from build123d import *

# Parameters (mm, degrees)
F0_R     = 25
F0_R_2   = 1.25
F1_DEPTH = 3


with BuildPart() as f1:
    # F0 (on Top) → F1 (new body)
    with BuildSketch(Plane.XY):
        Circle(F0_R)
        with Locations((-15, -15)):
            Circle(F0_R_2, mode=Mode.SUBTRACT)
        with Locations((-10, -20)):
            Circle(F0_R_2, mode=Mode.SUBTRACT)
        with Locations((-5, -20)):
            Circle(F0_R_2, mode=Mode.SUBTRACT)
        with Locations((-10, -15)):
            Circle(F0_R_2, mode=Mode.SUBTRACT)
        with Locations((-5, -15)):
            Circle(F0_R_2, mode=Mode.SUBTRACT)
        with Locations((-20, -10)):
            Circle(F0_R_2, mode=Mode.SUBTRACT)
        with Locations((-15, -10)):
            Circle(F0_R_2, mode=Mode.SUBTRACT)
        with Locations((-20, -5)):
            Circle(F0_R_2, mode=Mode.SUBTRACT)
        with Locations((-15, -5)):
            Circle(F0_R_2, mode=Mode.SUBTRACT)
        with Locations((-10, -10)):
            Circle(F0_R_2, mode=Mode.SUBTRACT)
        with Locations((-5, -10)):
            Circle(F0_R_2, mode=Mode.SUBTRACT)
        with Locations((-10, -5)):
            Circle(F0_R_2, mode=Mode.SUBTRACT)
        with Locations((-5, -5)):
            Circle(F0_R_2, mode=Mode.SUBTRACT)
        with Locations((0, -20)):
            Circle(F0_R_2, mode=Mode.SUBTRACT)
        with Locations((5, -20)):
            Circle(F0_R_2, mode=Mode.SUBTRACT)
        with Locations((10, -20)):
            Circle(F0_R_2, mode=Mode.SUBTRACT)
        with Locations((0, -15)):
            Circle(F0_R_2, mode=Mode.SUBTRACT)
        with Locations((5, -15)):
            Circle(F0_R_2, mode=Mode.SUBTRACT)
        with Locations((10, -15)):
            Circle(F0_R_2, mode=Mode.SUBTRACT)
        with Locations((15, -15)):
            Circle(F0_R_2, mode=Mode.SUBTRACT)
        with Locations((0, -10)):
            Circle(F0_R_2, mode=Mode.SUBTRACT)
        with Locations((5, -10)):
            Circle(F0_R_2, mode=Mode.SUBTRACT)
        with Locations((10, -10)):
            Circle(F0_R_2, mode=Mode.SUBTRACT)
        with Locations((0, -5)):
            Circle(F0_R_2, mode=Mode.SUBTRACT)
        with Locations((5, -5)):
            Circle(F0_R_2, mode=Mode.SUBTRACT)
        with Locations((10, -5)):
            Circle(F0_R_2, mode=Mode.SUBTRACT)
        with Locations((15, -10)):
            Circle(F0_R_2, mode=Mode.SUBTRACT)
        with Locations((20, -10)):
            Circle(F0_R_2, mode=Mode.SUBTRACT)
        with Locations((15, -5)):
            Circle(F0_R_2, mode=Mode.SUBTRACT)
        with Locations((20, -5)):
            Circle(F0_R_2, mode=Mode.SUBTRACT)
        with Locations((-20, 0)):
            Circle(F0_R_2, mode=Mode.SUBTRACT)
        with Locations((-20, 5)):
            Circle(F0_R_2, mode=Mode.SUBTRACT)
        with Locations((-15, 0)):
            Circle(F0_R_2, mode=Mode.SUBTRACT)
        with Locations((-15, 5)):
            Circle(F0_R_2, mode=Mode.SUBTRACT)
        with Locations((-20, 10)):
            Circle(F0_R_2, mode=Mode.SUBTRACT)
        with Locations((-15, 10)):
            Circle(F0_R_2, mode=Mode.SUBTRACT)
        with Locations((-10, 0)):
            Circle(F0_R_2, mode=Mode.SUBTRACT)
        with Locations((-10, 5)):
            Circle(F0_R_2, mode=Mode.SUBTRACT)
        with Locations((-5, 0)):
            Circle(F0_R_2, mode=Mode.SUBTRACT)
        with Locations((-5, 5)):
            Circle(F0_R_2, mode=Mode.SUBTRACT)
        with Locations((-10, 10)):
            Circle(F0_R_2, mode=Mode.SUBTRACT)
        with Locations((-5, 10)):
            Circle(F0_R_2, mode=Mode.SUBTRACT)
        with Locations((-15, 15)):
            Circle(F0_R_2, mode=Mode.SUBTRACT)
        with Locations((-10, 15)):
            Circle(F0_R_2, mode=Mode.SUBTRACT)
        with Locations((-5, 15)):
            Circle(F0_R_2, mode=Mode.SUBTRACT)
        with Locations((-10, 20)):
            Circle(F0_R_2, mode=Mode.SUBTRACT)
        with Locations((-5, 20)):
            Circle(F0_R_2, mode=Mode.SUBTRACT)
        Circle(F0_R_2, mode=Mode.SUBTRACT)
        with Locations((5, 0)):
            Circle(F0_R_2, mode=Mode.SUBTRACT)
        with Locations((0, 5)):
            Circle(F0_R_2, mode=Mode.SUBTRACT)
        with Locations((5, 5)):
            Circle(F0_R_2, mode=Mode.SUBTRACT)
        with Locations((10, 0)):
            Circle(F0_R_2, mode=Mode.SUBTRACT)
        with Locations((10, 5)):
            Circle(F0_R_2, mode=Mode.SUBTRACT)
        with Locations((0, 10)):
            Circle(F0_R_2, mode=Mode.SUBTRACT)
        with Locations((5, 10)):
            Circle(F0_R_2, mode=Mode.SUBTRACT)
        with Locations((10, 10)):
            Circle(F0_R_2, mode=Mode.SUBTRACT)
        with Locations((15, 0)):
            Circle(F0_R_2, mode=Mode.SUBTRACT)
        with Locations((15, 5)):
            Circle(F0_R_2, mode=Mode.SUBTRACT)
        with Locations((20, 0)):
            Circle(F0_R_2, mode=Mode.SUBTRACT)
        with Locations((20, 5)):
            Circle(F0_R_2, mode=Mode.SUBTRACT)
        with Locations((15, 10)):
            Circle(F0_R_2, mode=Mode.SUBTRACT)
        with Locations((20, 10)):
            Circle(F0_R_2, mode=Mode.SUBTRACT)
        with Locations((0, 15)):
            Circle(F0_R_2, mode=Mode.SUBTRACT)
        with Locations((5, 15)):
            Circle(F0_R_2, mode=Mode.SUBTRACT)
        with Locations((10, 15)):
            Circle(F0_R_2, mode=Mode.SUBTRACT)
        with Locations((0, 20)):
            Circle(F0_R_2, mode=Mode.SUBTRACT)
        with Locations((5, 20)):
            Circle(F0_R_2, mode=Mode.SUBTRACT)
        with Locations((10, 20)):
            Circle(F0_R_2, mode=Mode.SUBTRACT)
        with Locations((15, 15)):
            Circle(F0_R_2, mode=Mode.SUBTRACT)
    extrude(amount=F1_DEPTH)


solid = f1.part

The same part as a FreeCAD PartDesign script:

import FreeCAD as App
import Part
import Sketcher

V = App.Vector
Q = App.Units.Quantity

doc = App.newDocument("Part")
body = doc.addObject("PartDesign::Body", "Body")

# Sketch on XY plane
sketch1 = body.newObject("Sketcher::SketchObject", "Sketch")
sketch1.AttachmentSupport = (doc.getObject("XY_Plane"), [""])
sketch1.MapMode = "FlatFace"
sketch1.addGeometry([
    Part.Circle(V(0, 0, 0), V(0, 0, 1), 25),  # 0
    Part.Circle(V(-15, -15, 0), V(0, 0, 1), 1.2),  # 1
    Part.Circle(V(-10, -20, 0), V(0, 0, 1), 1.2),  # 2
    Part.Circle(V(-5, -20, 0), V(0, 0, 1), 1.2),  # 3
    Part.Circle(V(-10, -15, 0), V(0, 0, 1), 1.2),  # 4
    Part.Circle(V(-5, -15, 0), V(0, 0, 1), 1.2),  # 5
    Part.Circle(V(-20, -10, 0), V(0, 0, 1), 1.2),  # 6
    Part.Circle(V(-15, -10, 0), V(0, 0, 1), 1.2),  # 7
    Part.Circle(V(-20, -5, 0), V(0, 0, 1), 1.2),  # 8
    Part.Circle(V(-15, -5, 0), V(0, 0, 1), 1.2),  # 9
    Part.Circle(V(-10, -10, 0), V(0, 0, 1), 1.2),  # 10
    Part.Circle(V(-5, -10, 0), V(0, 0, 1), 1.2),  # 11
    Part.Circle(V(-10, -5, 0), V(0, 0, 1), 1.2),  # 12
    Part.Circle(V(-5, -5, 0), V(0, 0, 1), 1.2),  # 13
    Part.Circle(V(0, -20, 0), V(0, 0, 1), 1.2),  # 14
    Part.Circle(V(5, -20, 0), V(0, 0, 1), 1.2),  # 15
    Part.Circle(V(10, -20, 0), V(0, 0, 1), 1.2),  # 16
    Part.Circle(V(0, -15, 0), V(0, 0, 1), 1.2),  # 17
    Part.Circle(V(5, -15, 0), V(0, 0, 1), 1.2),  # 18
    Part.Circle(V(10, -15, 0), V(0, 0, 1), 1.2),  # 19
    Part.Circle(V(15, -15, 0), V(0, 0, 1), 1.2),  # 20
    Part.Circle(V(0, -10, 0), V(0, 0, 1), 1.2),  # 21
    Part.Circle(V(5, -10, 0), V(0, 0, 1), 1.2),  # 22
    Part.Circle(V(10, -10, 0), V(0, 0, 1), 1.2),  # 23
    Part.Circle(V(0, -5, 0), V(0, 0, 1), 1.2),  # 24
    Part.Circle(V(5, -5, 0), V(0, 0, 1), 1.2),  # 25
    Part.Circle(V(10, -5, 0), V(0, 0, 1), 1.2),  # 26
    Part.Circle(V(15, -10, 0), V(0, 0, 1), 1.2),  # 27
    Part.Circle(V(20, -10, 0), V(0, 0, 1), 1.2),  # 28
    Part.Circle(V(15, -5, 0), V(0, 0, 1), 1.2),  # 29
    Part.Circle(V(20, -5, 0), V(0, 0, 1), 1.2),  # 30
    Part.Circle(V(-20, 0, 0), V(0, 0, 1), 1.2),  # 31
    Part.Circle(V(-20, 5, 0), V(0, 0, 1), 1.2),  # 32
    Part.Circle(V(-15, 0, 0), V(0, 0, 1), 1.2),  # 33
    Part.Circle(V(-15, 5, 0), V(0, 0, 1), 1.2),  # 34
    Part.Circle(V(-20, 10, 0), V(0, 0, 1), 1.2),  # 35
    Part.Circle(V(-15, 10, 0), V(0, 0, 1), 1.2),  # 36
    Part.Circle(V(-10, 0, 0), V(0, 0, 1), 1.2),  # 37
    Part.Circle(V(-10, 5, 0), V(0, 0, 1), 1.2),  # 38
    Part.Circle(V(-5, 0, 0), V(0, 0, 1), 1.2),  # 39
    Part.Circle(V(-5, 5, 0), V(0, 0, 1), 1.2),  # 40
    Part.Circle(V(-10, 10, 0), V(0, 0, 1), 1.2),  # 41
    Part.Circle(V(-5, 10, 0), V(0, 0, 1), 1.2),  # 42
    Part.Circle(V(-15, 15, 0), V(0, 0, 1), 1.2),  # 43
    Part.Circle(V(-10, 15, 0), V(0, 0, 1), 1.2),  # 44
    Part.Circle(V(-5, 15, 0), V(0, 0, 1), 1.2),  # 45
    Part.Circle(V(-10, 20, 0), V(0, 0, 1), 1.2),  # 46
    Part.Circle(V(-5, 20, 0), V(0, 0, 1), 1.2),  # 47
    Part.Circle(V(0, 0, 0), V(0, 0, 1), 1.2),  # 48
    Part.Circle(V(5, 0, 0), V(0, 0, 1), 1.2),  # 49
    Part.Circle(V(0, 5, 0), V(0, 0, 1), 1.2),  # 50
    Part.Circle(V(5, 5, 0), V(0, 0, 1), 1.2),  # 51
    Part.Circle(V(10, 0, 0), V(0, 0, 1), 1.2),  # 52
    Part.Circle(V(10, 5, 0), V(0, 0, 1), 1.2),  # 53
    Part.Circle(V(0, 10, 0), V(0, 0, 1), 1.2),  # 54
    Part.Circle(V(5, 10, 0), V(0, 0, 1), 1.2),  # 55
    Part.Circle(V(10, 10, 0), V(0, 0, 1), 1.2),  # 56
    Part.Circle(V(15, 0, 0), V(0, 0, 1), 1.2),  # 57
    Part.Circle(V(15, 5, 0), V(0, 0, 1), 1.2),  # 58
    Part.Circle(V(20, 0, 0), V(0, 0, 1), 1.2),  # 59
    Part.Circle(V(20, 5, 0), V(0, 0, 1), 1.2),  # 60
    Part.Circle(V(15, 10, 0), V(0, 0, 1), 1.2),  # 61
    Part.Circle(V(20, 10, 0), V(0, 0, 1), 1.2),  # 62
    Part.Circle(V(0, 15, 0), V(0, 0, 1), 1.2),  # 63
    Part.Circle(V(5, 15, 0), V(0, 0, 1), 1.2),  # 64
    Part.Circle(V(10, 15, 0), V(0, 0, 1), 1.2),  # 65
    Part.Circle(V(0, 20, 0), V(0, 0, 1), 1.2),  # 66
    Part.Circle(V(5, 20, 0), V(0, 0, 1), 1.2),  # 67
    Part.Circle(V(10, 20, 0), V(0, 0, 1), 1.2),  # 68
    Part.Circle(V(15, 15, 0), V(0, 0, 1), 1.2),  # 69
], False)
sketch1.addConstraint([
    Sketcher.Constraint("Coincident", 0, 3, -1, 1),
    Sketcher.Constraint("Coincident", 48, 3, -1, 1),
    Sketcher.Constraint("Equal", 1, 2),
    Sketcher.Constraint("Equal", 2, 3),
    Sketcher.Constraint("Equal", 3, 4),
    Sketcher.Constraint("Equal", 4, 5),
    Sketcher.Constraint("Equal", 5, 6),
    Sketcher.Constraint("Equal", 6, 7),
    Sketcher.Constraint("Equal", 7, 8),
    Sketcher.Constraint("Equal", 8, 9),
    Sketcher.Constraint("Equal", 9, 10),
    Sketcher.Constraint("Equal", 10, 11),
    Sketcher.Constraint("Equal", 11, 12),
    Sketcher.Constraint("Equal", 12, 13),
    Sketcher.Constraint("Equal", 13, 14),
    Sketcher.Constraint("Equal", 14, 15),
    Sketcher.Constraint("Equal", 15, 16),
    Sketcher.Constraint("Equal", 16, 17),
    Sketcher.Constraint("Equal", 17, 18),
    Sketcher.Constraint("Equal", 18, 19),
    Sketcher.Constraint("Equal", 19, 20),
    Sketcher.Constraint("Equal", 20, 21),
    Sketcher.Constraint("Equal", 21, 22),
    Sketcher.Constraint("Equal", 22, 23),
    Sketcher.Constraint("Equal", 23, 24),
    Sketcher.Constraint("Equal", 24, 25),
    Sketcher.Constraint("Equal", 25, 26),
    Sketcher.Constraint("Equal", 26, 27),
    Sketcher.Constraint("Equal", 27, 28),
    Sketcher.Constraint("Equal", 28, 29),
    Sketcher.Constraint("Equal", 29, 30),
    Sketcher.Constraint("Equal", 30, 31),
    Sketcher.Constraint("Equal", 31, 32),
    Sketcher.Constraint("Equal", 32, 33),
    Sketcher.Constraint("Equal", 33, 34),
    Sketcher.Constraint("Equal", 34, 35),
    Sketcher.Constraint("Equal", 35, 36),
    Sketcher.Constraint("Equal", 36, 37),
    Sketcher.Constraint("Equal", 37, 38),
    Sketcher.Constraint("Equal", 38, 39),
    Sketcher.Constraint("Equal", 39, 40),
    Sketcher.Constraint("Equal", 40, 41),
    Sketcher.Constraint("Equal", 41, 42),
    Sketcher.Constraint("Equal", 42, 43),
    Sketcher.Constraint("Equal", 43, 44),
    Sketcher.Constraint("Equal", 44, 45),
    Sketcher.Constraint("Equal", 45, 46),
    Sketcher.Constraint("Equal", 46, 47),
    Sketcher.Constraint("Equal", 47, 48),
    Sketcher.Constraint("Equal", 48, 49),
    Sketcher.Constraint("Equal", 49, 50),
    Sketcher.Constraint("Equal", 50, 51),
    Sketcher.Constraint("Equal", 51, 52),
    Sketcher.Constraint("Equal", 52, 53),
    Sketcher.Constraint("Equal", 53, 54),
    Sketcher.Constraint("Equal", 54, 55),
    Sketcher.Constraint("Equal", 55, 56),
    Sketcher.Constraint("Equal", 56, 57),
    Sketcher.Constraint("Equal", 57, 58),
    Sketcher.Constraint("Equal", 58, 59),
    Sketcher.Constraint("Equal", 59, 60),
    Sketcher.Constraint("Equal", 60, 61),
    Sketcher.Constraint("Equal", 61, 62),
    Sketcher.Constraint("Equal", 62, 63),
    Sketcher.Constraint("Equal", 63, 64),
    Sketcher.Constraint("Equal", 64, 65),
    Sketcher.Constraint("Equal", 65, 66),
    Sketcher.Constraint("Equal", 66, 67),
    Sketcher.Constraint("Equal", 67, 68),
    Sketcher.Constraint("Equal", 68, 69),
    Sketcher.Constraint("Symmetric", 30, 3, 32, 3, -1, 1),
    Sketcher.Constraint("Symmetric", 29, 3, 34, 3, -1, 1),
    Sketcher.Constraint("Symmetric", 28, 3, 35, 3, -1, 1),
    Sketcher.Constraint("Symmetric", 27, 3, 36, 3, -1, 1),
    Sketcher.Constraint("Symmetric", 26, 3, 38, 3, -1, 1),
    Sketcher.Constraint("Symmetric", 25, 3, 40, 3, -1, 1),
    Sketcher.Constraint("Symmetric", 23, 3, 41, 3, -1, 1),
    Sketcher.Constraint("Symmetric", 22, 3, 42, 3, -1, 1),
    Sketcher.Constraint("Symmetric", 20, 3, 43, 3, -1, 1),
    Sketcher.Constraint("Symmetric", 19, 3, 44, 3, -1, 1),
    Sketcher.Constraint("Symmetric", 18, 3, 45, 3, -1, 1),
    Sketcher.Constraint("Symmetric", 16, 3, 46, 3, -1, 1),
    Sketcher.Constraint("Symmetric", 15, 3, 47, 3, -1, 1),
    Sketcher.Constraint("Symmetric", 39, 3, 49, 3, -1, 1),
    Sketcher.Constraint("Symmetric", 24, 3, 50, 3, -1, 1),
    Sketcher.Constraint("Symmetric", 13, 3, 51, 3, -1, 1),
    Sketcher.Constraint("Symmetric", 37, 3, 52, 3, -1, 1),
    Sketcher.Constraint("Symmetric", 12, 3, 53, 3, -1, 1),
    Sketcher.Constraint("Symmetric", 21, 3, 54, 3, -1, 1),
    Sketcher.Constraint("Symmetric", 11, 3, 55, 3, -1, 1),
    Sketcher.Constraint("Symmetric", 10, 3, 56, 3, -1, 1),
    Sketcher.Constraint("Symmetric", 33, 3, 57, 3, -1, 1),
    Sketcher.Constraint("Symmetric", 9, 3, 58, 3, -1, 1),
    Sketcher.Constraint("Symmetric", 31, 3, 59, 3, -1, 1),
    Sketcher.Constraint("Symmetric", 8, 3, 60, 3, -1, 1),
    Sketcher.Constraint("Symmetric", 7, 3, 61, 3, -1, 1),
    Sketcher.Constraint("Symmetric", 6, 3, 62, 3, -1, 1),
    Sketcher.Constraint("Symmetric", 17, 3, 63, 3, -1, 1),
    Sketcher.Constraint("Symmetric", 5, 3, 64, 3, -1, 1),
    Sketcher.Constraint("Symmetric", 4, 3, 65, 3, -1, 1),
    Sketcher.Constraint("Symmetric", 14, 3, 66, 3, -1, 1),
    Sketcher.Constraint("Symmetric", 3, 3, 67, 3, -1, 1),
    Sketcher.Constraint("Symmetric", 2, 3, 68, 3, -1, 1),
    Sketcher.Constraint("Symmetric", 1, 3, 69, 3, -1, 1),
    Sketcher.Constraint("Symmetric", 3, 3, 15, 3, -2),
    Sketcher.Constraint("Symmetric", 2, 3, 16, 3, -2),
    Sketcher.Constraint("Symmetric", 5, 3, 18, 3, -2),
    Sketcher.Constraint("Symmetric", 4, 3, 19, 3, -2),
    Sketcher.Constraint("Symmetric", 1, 3, 20, 3, -2),
    Sketcher.Constraint("Symmetric", 11, 3, 22, 3, -2),
    Sketcher.Constraint("Symmetric", 10, 3, 23, 3, -2),
    Sketcher.Constraint("Symmetric", 13, 3, 25, 3, -2),
    Sketcher.Constraint("Symmetric", 12, 3, 26, 3, -2),
    Sketcher.Constraint("Symmetric", 7, 3, 27, 3, -2),
    Sketcher.Constraint("Symmetric", 6, 3, 28, 3, -2),
    Sketcher.Constraint("Symmetric", 9, 3, 29, 3, -2),
    Sketcher.Constraint("Symmetric", 8, 3, 30, 3, -2),
    Sketcher.Constraint("PointOnObject", 14, 3, -2),
    Sketcher.Constraint("PointOnObject", 17, 3, -2),
    Sketcher.Constraint("PointOnObject", 21, 3, -2),
    Sketcher.Constraint("PointOnObject", 24, 3, -2),
    Sketcher.Constraint("PointOnObject", 31, 3, -1),
    Sketcher.Constraint("PointOnObject", 33, 3, -1),
    Sketcher.Constraint("PointOnObject", 37, 3, -1),
    Sketcher.Constraint("PointOnObject", 39, 3, -1),
    Sketcher.Constraint("Horizontal", 2, 3, 3, 3),
    Sketcher.Constraint("Horizontal", 1, 3, 4, 3),
    Sketcher.Constraint("Horizontal", 4, 3, 5, 3),
    Sketcher.Constraint("Horizontal", 6, 3, 7, 3),
    Sketcher.Constraint("Horizontal", 8, 3, 9, 3),
    Sketcher.Constraint("Horizontal", 7, 3, 10, 3),
    Sketcher.Constraint("Horizontal", 10, 3, 11, 3),
    Sketcher.Constraint("Horizontal", 9, 3, 12, 3),
    Sketcher.Constraint("Horizontal", 12, 3, 13, 3),
    Sketcher.Constraint("Horizontal", 3, 3, 14, 3),
    Sketcher.Constraint("Horizontal", 5, 3, 17, 3),
    Sketcher.Constraint("Horizontal", 11, 3, 21, 3),
    Sketcher.Constraint("Horizontal", 13, 3, 24, 3),
    Sketcher.Constraint("Vertical", 2, 3, 4, 3),
    Sketcher.Constraint("Vertical", 3, 3, 5, 3),
    Sketcher.Constraint("Vertical", 1, 3, 7, 3),
    Sketcher.Constraint("Vertical", 6, 3, 8, 3),
    Sketcher.Constraint("Vertical", 7, 3, 9, 3),
    Sketcher.Constraint("Vertical", 4, 3, 10, 3),
    Sketcher.Constraint("Vertical", 5, 3, 11, 3),
    Sketcher.Constraint("Vertical", 10, 3, 12, 3),
    Sketcher.Constraint("Vertical", 11, 3, 13, 3),
    Sketcher.Constraint("Vertical", 8, 3, 31, 3),
    Sketcher.Constraint("Vertical", 9, 3, 33, 3),
    Sketcher.Constraint("Vertical", 12, 3, 37, 3),
    Sketcher.Constraint("Vertical", 13, 3, 39, 3),
    Sketcher.Constraint("Diameter", 0, Q("50 mm")),
    Sketcher.Constraint("Diameter", 1, Q("2.5 mm")),
    Sketcher.Constraint("DistanceX", 1, 3, -1, 1, Q("15 mm")),
    Sketcher.Constraint("DistanceY", 1, 3, -1, 1, Q("15 mm")),
    Sketcher.Constraint("DistanceX", 2, 3, -1, 1, Q("10 mm")),
    Sketcher.Constraint("DistanceY", 2, 3, -1, 1, Q("20 mm")),
    Sketcher.Constraint("DistanceX", 3, 3, -1, 1, Q("5 mm")),
    Sketcher.Constraint("DistanceX", 6, 3, -1, 1, Q("20 mm")),
    Sketcher.Constraint("DistanceY", 6, 3, -1, 1, Q("10 mm")),
    Sketcher.Constraint("DistanceY", 8, 3, -1, 1, Q("5 mm")),
])
pad1 = body.newObject("PartDesign::Pad", "Pad")
pad1.Profile = sketch1
pad1.Length = 3

doc.recompute()
